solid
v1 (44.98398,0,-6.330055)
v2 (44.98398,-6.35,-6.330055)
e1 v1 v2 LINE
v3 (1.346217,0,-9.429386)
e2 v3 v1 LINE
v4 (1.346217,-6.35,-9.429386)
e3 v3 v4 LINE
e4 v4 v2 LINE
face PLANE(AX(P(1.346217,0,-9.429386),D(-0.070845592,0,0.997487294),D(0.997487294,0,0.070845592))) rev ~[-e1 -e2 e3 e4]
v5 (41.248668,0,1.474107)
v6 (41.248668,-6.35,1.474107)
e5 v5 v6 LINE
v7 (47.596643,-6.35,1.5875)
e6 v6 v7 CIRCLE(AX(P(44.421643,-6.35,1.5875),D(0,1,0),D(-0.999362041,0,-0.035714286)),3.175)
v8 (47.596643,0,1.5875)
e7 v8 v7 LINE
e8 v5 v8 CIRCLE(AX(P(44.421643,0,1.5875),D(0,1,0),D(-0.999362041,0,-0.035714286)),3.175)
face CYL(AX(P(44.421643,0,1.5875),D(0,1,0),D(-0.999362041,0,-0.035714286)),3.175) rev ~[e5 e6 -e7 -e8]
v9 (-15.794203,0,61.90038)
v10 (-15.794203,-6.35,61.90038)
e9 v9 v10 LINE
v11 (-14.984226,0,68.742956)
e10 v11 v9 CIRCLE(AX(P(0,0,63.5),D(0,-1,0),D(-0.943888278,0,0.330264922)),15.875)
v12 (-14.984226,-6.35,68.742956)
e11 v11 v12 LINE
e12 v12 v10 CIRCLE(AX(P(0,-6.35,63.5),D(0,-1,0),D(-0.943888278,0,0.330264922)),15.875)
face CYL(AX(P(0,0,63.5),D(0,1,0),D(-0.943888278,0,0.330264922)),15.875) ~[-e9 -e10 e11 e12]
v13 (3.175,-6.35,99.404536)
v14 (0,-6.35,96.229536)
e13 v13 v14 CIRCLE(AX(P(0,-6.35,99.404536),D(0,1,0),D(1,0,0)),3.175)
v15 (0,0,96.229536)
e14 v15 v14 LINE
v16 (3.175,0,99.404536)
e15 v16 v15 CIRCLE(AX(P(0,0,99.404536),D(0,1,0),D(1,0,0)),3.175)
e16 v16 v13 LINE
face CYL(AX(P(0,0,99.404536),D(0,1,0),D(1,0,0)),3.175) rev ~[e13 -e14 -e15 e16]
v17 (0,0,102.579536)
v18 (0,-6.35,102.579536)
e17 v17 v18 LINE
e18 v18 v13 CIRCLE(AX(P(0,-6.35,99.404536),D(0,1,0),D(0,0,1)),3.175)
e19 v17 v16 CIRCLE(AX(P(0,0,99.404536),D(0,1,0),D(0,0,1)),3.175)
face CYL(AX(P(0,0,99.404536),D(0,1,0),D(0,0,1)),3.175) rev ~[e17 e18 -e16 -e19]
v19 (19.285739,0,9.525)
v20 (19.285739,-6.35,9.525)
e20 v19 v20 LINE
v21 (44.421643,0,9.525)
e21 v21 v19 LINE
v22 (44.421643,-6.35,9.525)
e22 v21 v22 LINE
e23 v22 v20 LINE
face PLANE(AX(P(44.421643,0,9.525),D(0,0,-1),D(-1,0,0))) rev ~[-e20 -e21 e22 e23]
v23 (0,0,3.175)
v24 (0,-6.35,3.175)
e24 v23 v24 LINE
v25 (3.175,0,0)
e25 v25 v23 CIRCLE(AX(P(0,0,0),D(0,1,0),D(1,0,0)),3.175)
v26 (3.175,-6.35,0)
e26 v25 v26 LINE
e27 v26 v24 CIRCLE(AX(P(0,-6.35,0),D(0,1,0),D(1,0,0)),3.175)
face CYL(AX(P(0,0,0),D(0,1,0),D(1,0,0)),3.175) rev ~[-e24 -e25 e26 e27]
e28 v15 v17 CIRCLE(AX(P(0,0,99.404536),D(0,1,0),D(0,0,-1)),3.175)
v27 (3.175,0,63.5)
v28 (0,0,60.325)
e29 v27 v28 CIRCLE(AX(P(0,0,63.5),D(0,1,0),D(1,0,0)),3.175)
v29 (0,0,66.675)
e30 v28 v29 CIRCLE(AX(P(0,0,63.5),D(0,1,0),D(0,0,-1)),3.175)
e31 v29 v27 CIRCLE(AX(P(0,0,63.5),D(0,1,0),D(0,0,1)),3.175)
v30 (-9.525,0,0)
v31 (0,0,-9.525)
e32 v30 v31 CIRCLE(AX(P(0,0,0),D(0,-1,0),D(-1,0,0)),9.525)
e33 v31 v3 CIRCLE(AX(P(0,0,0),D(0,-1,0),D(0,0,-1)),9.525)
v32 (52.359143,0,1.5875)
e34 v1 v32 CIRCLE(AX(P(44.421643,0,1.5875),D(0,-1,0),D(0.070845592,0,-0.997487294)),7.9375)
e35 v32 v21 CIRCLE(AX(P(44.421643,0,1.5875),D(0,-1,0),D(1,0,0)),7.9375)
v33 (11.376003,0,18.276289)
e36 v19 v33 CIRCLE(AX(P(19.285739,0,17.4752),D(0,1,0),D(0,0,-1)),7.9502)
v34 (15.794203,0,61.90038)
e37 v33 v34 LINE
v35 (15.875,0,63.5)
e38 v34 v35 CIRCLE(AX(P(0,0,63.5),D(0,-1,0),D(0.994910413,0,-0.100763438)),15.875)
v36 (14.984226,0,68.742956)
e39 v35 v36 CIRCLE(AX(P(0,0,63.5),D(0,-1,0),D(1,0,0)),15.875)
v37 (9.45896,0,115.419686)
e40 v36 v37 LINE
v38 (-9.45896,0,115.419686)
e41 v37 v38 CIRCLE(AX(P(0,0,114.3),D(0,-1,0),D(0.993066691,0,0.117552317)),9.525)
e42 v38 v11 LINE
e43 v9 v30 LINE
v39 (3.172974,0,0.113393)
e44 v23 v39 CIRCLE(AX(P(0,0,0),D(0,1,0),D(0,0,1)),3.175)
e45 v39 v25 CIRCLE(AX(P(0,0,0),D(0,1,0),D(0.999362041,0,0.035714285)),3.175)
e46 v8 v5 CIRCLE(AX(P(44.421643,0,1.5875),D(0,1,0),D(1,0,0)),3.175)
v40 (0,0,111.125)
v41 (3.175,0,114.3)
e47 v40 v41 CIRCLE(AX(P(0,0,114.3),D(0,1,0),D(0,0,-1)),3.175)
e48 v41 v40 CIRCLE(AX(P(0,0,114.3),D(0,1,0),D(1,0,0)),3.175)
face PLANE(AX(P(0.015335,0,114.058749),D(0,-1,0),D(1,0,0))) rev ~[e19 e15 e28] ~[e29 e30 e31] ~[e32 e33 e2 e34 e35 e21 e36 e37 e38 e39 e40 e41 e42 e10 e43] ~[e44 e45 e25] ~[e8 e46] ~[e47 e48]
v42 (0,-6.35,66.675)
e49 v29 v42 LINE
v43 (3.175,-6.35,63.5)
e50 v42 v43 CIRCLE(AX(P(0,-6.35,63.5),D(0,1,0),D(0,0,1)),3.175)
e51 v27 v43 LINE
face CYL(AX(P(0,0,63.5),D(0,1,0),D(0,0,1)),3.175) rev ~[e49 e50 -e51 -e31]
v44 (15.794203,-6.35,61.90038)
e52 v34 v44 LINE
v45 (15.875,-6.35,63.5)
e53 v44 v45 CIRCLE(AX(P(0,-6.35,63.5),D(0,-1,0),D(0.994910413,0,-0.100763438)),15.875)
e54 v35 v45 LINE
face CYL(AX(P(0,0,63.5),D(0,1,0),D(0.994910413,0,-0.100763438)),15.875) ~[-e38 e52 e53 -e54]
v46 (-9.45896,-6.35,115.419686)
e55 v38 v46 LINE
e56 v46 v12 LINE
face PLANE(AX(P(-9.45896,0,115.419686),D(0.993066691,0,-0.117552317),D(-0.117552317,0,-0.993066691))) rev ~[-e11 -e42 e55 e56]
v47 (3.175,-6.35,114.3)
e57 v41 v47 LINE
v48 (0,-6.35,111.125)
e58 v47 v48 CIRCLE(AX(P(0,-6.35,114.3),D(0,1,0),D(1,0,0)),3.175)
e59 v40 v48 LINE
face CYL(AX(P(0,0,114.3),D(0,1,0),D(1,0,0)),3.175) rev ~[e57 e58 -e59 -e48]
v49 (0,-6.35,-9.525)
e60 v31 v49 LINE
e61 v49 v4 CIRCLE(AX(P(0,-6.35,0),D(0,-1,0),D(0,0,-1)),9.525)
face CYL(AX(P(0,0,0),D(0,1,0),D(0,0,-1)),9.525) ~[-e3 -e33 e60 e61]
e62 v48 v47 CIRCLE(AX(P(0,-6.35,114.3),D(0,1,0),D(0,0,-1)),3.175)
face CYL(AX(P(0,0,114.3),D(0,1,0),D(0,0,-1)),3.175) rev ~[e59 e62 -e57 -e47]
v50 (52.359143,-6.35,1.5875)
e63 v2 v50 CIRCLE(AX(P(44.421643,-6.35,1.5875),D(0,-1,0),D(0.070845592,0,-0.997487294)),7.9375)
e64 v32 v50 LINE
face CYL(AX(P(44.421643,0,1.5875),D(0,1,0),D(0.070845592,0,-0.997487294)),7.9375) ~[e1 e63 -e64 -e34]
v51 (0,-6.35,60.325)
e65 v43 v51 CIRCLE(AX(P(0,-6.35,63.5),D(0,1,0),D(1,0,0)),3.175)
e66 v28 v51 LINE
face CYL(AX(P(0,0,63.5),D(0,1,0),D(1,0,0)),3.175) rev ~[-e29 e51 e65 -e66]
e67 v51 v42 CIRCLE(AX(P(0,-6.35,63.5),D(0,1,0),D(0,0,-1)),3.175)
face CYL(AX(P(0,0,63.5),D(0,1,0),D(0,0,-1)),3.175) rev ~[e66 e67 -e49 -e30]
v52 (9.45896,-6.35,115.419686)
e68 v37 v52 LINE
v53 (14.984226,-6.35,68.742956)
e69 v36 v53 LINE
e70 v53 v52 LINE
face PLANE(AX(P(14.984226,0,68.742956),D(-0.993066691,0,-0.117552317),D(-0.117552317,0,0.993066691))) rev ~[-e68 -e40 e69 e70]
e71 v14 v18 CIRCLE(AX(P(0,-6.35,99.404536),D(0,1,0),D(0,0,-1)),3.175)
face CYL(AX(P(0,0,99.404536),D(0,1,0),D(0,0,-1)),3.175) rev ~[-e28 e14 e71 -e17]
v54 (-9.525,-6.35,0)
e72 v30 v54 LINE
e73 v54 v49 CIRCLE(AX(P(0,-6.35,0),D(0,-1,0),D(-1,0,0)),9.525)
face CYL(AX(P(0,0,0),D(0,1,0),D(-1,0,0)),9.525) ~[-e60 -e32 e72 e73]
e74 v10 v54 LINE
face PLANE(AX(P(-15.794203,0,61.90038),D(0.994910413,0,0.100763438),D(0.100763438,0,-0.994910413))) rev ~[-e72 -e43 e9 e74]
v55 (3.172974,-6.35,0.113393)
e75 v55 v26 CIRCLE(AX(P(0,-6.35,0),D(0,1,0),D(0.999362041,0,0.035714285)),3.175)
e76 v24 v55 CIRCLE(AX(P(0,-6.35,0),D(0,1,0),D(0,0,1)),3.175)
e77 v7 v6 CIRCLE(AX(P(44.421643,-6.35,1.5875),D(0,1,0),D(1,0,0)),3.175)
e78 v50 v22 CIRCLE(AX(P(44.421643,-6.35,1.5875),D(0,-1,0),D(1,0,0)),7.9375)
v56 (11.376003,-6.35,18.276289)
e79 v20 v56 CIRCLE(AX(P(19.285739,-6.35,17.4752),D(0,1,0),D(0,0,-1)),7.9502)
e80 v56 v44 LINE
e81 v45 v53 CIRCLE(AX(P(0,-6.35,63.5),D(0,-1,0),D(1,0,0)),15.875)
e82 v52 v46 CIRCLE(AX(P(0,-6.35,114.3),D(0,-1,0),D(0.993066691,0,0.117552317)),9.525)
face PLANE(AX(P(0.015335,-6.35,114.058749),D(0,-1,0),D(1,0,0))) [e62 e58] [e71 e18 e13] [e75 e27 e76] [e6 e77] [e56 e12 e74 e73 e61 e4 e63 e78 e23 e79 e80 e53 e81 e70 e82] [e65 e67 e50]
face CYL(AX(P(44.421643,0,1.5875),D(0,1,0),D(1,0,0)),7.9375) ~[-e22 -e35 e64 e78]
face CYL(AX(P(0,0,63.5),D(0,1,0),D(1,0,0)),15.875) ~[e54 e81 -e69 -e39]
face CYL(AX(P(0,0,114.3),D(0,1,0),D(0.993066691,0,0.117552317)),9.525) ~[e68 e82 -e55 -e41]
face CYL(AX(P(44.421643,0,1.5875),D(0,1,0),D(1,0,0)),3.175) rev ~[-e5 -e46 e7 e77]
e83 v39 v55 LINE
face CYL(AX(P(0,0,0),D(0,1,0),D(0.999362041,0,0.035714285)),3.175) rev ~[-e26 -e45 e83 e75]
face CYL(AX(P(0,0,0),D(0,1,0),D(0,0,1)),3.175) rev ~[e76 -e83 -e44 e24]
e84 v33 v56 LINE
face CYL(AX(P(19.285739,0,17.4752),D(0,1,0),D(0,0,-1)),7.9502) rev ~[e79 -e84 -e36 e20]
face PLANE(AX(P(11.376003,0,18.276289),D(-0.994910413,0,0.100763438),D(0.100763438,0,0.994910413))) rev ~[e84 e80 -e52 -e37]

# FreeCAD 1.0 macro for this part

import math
import FreeCAD as App
import Part
import Sketcher
from FreeCAD import Vector
Q = App.Units.Quantity

doc = App.newDocument("Part")
params = doc.addObject("Spreadsheet::Sheet", "Params")
for row, (alias, value) in enumerate([
    ("sketch1_radius", "0.375 in"),
    ("sketch1_radius2", "0.3125 in"),
    ("sketch1_radius3", "0.313 in"),
    ("sketch1_radius4", "0.625 in"),
    ("sketch1_radius5", "0.375 in"),
    ("pad1_length", "0.25 in"),
], start=1):
    params.set(f"A{row}", alias)
    params.set(f"B{row}", "=" + value)
    params.setAlias(f"B{row}", alias)

body = doc.addObject("PartDesign::Body", "Body")

sketch1 = body.newObject("Sketcher::SketchObject", "Sketch")
sketch1.AttachmentSupport = (doc.getObject("XZ_Plane"), [""])
sketch1.MapMode = "FlatFace"
sketch1.addGeometry([
    Part.ArcOfCircle(Part.Circle(Vector(0, 0, 0), Vector(0, 0, 1), 9.525), math.radians(-90), math.radians(-81.874887)),
    Part.LineSegment(Vector(1.346217, -9.429386, 0), Vector(44.98398, -6.330055, 0)),
    Part.ArcOfCircle(Part.Circle(Vector(44.421643, 1.5875, 0), Vector(0, 0, 1), 7.9375), math.radians(-85.937443), math.radians(0)),
    Part.ArcOfCircle(Part.Circle(Vector(44.421643, 1.5875, 0), Vector(0, 0, 1), 7.9375), math.radians(0), math.radians(90)),
    Part.LineSegment(Vector(44.421643, 9.525, 0), Vector(19.285739, 9.525, 0)),
    Part.ArcOfCircle(Part.Circle(Vector(19.285739, 17.4752, 0), Vector(0, 0, 1), 7.9502), math.radians(174.216866), math.radians(270)),
    Part.LineSegment(Vector(11.376003, 18.276289, 0), Vector(15.794203, 61.90038, 0)),
    Part.ArcOfCircle(Part.Circle(Vector(0, 63.5, 0), Vector(0, 0, 1), 15.875), math.radians(-5.783134), math.radians(0)),
    Part.ArcOfCircle(Part.Circle(Vector(0, 63.5, 0), Vector(0, 0, 1), 15.875), math.radians(0), math.radians(19.284856)),
    Part.LineSegment(Vector(14.984226, 68.742956, 0), Vector(9.45896, 115.419686, 0)),
    Part.ArcOfCircle(Part.Circle(Vector(0, 114.3, 0), Vector(0, 0, 1), 9.525), math.radians(6.750861), math.radians(173.249139)),
    Part.LineSegment(Vector(-9.45896, 115.419686, 0), Vector(-14.984226, 68.742956, 0)),
    Part.ArcOfCircle(Part.Circle(Vector(0, 63.5, 0), Vector(0, 0, 1), 15.875), math.radians(160.715144), math.radians(185.783134)),
    Part.LineSegment(Vector(-15.794203, 61.90038, 0), Vector(-9.525, 0, 0)),
    Part.ArcOfCircle(Part.Circle(Vector(0, 0, 0), Vector(0, 0, 1), 9.525), math.radians(180), math.radians(270)),
    Part.ArcOfCircle(Part.Circle(Vector(0, 0, 0), Vector(0, 0, 1), 3.175), math.radians(90), math.radians(360)),
    Part.ArcOfCircle(Part.Circle(Vector(0, 0, 0), Vector(0, 0, 1), 3.175), math.radians(2.046713), math.radians(90)),
    Part.ArcOfCircle(Part.Circle(Vector(0, 0, 0), Vector(0, 0, 1), 3.175), math.radians(0), math.radians(2.046713)),
    Part.ArcOfCircle(Part.Circle(Vector(44.421643, 1.5875, 0), Vector(0, 0, 1), 3.175), math.radians(0), math.radians(182.046713)),
    Part.ArcOfCircle(Part.Circle(Vector(44.421643, 1.5875, 0), Vector(0, 0, 1), 3.175), math.radians(-177.953287), math.radians(0)),
    Part.ArcOfCircle(Part.Circle(Vector(0, 63.5, 0), Vector(0, 0, 1), 3.175), math.radians(90), math.radians(270)),
    Part.ArcOfCircle(Part.Circle(Vector(0, 63.5, 0), Vector(0, 0, 1), 3.175), math.radians(0), math.radians(90)),
    Part.ArcOfCircle(Part.Circle(Vector(0, 63.5, 0), Vector(0, 0, 1), 3.175), math.radians(-90), math.radians(0)),
    Part.ArcOfCircle(Part.Circle(Vector(0, 99.404536, 0), Vector(0, 0, 1), 3.175), math.radians(0), math.radians(90)),
    Part.ArcOfCircle(Part.Circle(Vector(0, 99.404536, 0), Vector(0, 0, 1), 3.175), math.radians(-90), math.radians(0)),
    Part.ArcOfCircle(Part.Circle(Vector(0, 99.404536, 0), Vector(0, 0, 1), 3.175), math.radians(90), math.radians(270)),
    Part.ArcOfCircle(Part.Circle(Vector(0, 114.3, 0), Vector(0, 0, 1), 3.175), math.radians(0), math.radians(270)),
    Part.ArcOfCircle(Part.Circle(Vector(0, 114.3, 0), Vector(0, 0, 1), 3.175), math.radians(-90), math.radians(0)),
], False)
sketch1.addConstraint([
    Sketcher.Constraint("Coincident", 0, 2, 1, 1),
    Sketcher.Constraint("Coincident", 1, 2, 2, 1),
    Sketcher.Constraint("Coincident", 2, 2, 3, 1),
    Sketcher.Constraint("Coincident", 3, 2, 4, 1),
    Sketcher.Constraint("Coincident", 4, 2, 5, 2),
    Sketcher.Constraint("Coincident", 5, 1, 6, 1),
    Sketcher.Constraint("Coincident", 6, 2, 7, 1),
    Sketcher.Constraint("Coincident", 7, 2, 8, 1),
    Sketcher.Constraint("Coincident", 8, 2, 9, 1),
    Sketcher.Constraint("Coincident", 9, 2, 10, 1),
    Sketcher.Constraint("Coincident", 10, 2, 11, 1),
    Sketcher.Constraint("Coincident", 11, 2, 12, 1),
    Sketcher.Constraint("Coincident", 12, 2, 13, 1),
    Sketcher.Constraint("Coincident", 13, 2, 14, 1),
    Sketcher.Constraint("Coincident", 14, 2, 0, 1),
    Sketcher.Constraint("Coincident", 15, 1, 16, 2),
    Sketcher.Constraint("Coincident", 16, 1, 17, 2),
    Sketcher.Constraint("Coincident", 17, 1, 15, 2),
    Sketcher.Constraint("Coincident", 18, 1, 19, 2),
    Sketcher.Constraint("Coincident", 19, 1, 18, 2),
    Sketcher.Constraint("Coincident", 20, 1, 21, 2),
    Sketcher.Constraint("Coincident", 21, 1, 22, 2),
    Sketcher.Constraint("Coincident", 22, 1, 20, 2),
    Sketcher.Constraint("Coincident", 23, 1, 24, 2),
    Sketcher.Constraint("Coincident", 24, 1, 25, 2),
    Sketcher.Constraint("Coincident", 25, 1, 23, 2),
    Sketcher.Constraint("Coincident", 26, 1, 27, 2),
    Sketcher.Constraint("Coincident", 27, 1, 26, 2),
    Sketcher.Constraint("Horizontal", 4),
    Sketcher.Constraint("Coincident", 0, 3, -1, 1),
    Sketcher.Constraint("Coincident", 14, 3, -1, 1),
    Sketcher.Constraint("Coincident", 15, 3, -1, 1),
    Sketcher.Constraint("Coincident", 16, 3, -1, 1),
    Sketcher.Constraint("Coincident", 3, 3, 2, 3),
    Sketcher.Constraint("Coincident", 8, 3, 7, 3),
    Sketcher.Constraint("Coincident", 12, 3, 7, 3),
    Sketcher.Constraint("Coincident", 18, 3, 2, 3),
    Sketcher.Constraint("Coincident", 20, 3, 7, 3),
    Sketcher.Constraint("Coincident", 21, 3, 7, 3),
    Sketcher.Constraint("Coincident", 24, 3, 23, 3),
    Sketcher.Constraint("Coincident", 26, 3, 10, 3),
    Sketcher.Constraint("PointOnObject", 7, 3, -2),
    Sketcher.Constraint("PointOnObject", 10, 3, -2),
    Sketcher.Constraint("PointOnObject", 22, 3, -2),
    Sketcher.Constraint("PointOnObject", 23, 3, -2),
    Sketcher.Constraint("PointOnObject", 25, 3, -2),
    Sketcher.Constraint("PointOnObject", 27, 3, -2),
    Sketcher.Constraint("PointOnObject", 13, 2, -1),
    Sketcher.Constraint("PointOnObject", 14, 2, -2),
    Sketcher.Constraint("PointOnObject", 15, 1, -2),
    Sketcher.Constraint("PointOnObject", 17, 1, -1),
    Sketcher.Constraint("PointOnObject", 20, 1, -2),
    Sketcher.Constraint("PointOnObject", 22, 1, -2),
    Sketcher.Constraint("PointOnObject", 24, 1, -2),
    Sketcher.Constraint("PointOnObject", 25, 1, -2),
    Sketcher.Constraint("PointOnObject", 27, 1, -2),
    Sketcher.Constraint("Radius", 0, Q("0.375 in")),
    Sketcher.Constraint("Radius", 2, Q("0.3125 in")),
    Sketcher.Constraint("Radius", 5, Q("0.313 in")),
    Sketcher.Constraint("Radius", 7, Q("0.625 in")),
    Sketcher.Constraint("Radius", 10, Q("0.375 in")),
    Sketcher.Constraint("Radius", 12, Q("0.625 in")),
    Sketcher.Constraint("Radius", 15, Q("0.125 in")),
    Sketcher.Constraint("Radius", 17, Q("0.125 in")),
    Sketcher.Constraint("Radius", 18, Q("0.125 in")),
    Sketcher.Constraint("Radius", 19, Q("0.125 in")),
    Sketcher.Constraint("Radius", 20, Q("0.125 in")),
    Sketcher.Constraint("Radius", 23, Q("0.125 in")),
    Sketcher.Constraint("Radius", 26, Q("0.125 in")),
    Sketcher.Constraint("DistanceY", 8, 3, 10, 3, Q("2 in")),
    Sketcher.Constraint("DistanceY", -1, 1, 7, 3, Q("2.5 in")),
    Sketcher.Constraint("DistanceY", -1, 1, 7, 2, Q("2.5 in")),
    Sketcher.Constraint("DistanceY", -1, 1, 21, 1, Q("2.5 in")),
    Sketcher.Constraint("DistanceY", -1, 1, 26, 1, Q("4.5 in")),
    Sketcher.Constraint("DistanceY", -1, 1, 2, 3, Q("0.0625 in")),
    Sketcher.Constraint("DistanceY", -1, 1, 2, 2, Q("0.0625 in")),
    Sketcher.Constraint("DistanceY", -1, 1, 18, 1, Q("0.0625 in")),
    Sketcher.Constraint("DistanceX", 3, 2, 2, 2, Q("0.3125 in")),
    Sketcher.Constraint("DistanceY", 24, 1, 23, 1, Q("0.125 in")),
    Sketcher.Constraint("DistanceX", -1, 1, 9, 2, Q("0.3724 in")),
    Sketcher.Constraint("DistanceX", 10, 2, -1, 1, Q("0.3724 in")),
    Sketcher.Constraint("Distance", 13, 62.217039),
    Sketcher.Constraint("DistanceX", 4, 2, 4, 1, 25.135903),
    Sketcher.Constraint("DistanceX", -1, 1, 5, 3, 19.285739),
    Sketcher.Constraint("DistanceX", -1, 1, 1, 2, 44.98398),
    Sketcher.Constraint("DistanceX", -1, 1, 4, 2, 19.285739),
    Sketcher.Constraint("DistanceY", -1, 1, 5, 1, 18.276289),
    Sketcher.Constraint("DistanceY", -1, 1, 6, 2, 61.90038),
    Sketcher.Constraint("DistanceX", -1, 1, 19, 1, 41.248668),
    Sketcher.Constraint("DistanceY", 23, 3, 9, 2, 16.01515),
    Sketcher.Constraint("Distance", 1, 43.747687),
    Sketcher.Constraint("Distance", 9, 47.002614),
    Sketcher.Constraint("Distance", 11, 47.002614),
    Sketcher.Constraint("DistanceX", -1, 1, 16, 1, 3.172974),
])
sketch1.setExpression("Constraints[56]", "Params.sketch1_radius")
sketch1.setExpression("Constraints[57]", "Params.sketch1_radius2")
sketch1.setExpression("Constraints[58]", "Params.sketch1_radius3")
sketch1.setExpression("Constraints[59]", "Params.sketch1_radius4")
sketch1.setExpression("Constraints[60]", "Params.sketch1_radius5")
pad1 = body.newObject("PartDesign::Pad", "Pad")
pad1.Profile = sketch1
pad1.setExpression("Length", "Params.pad1_length")

doc.recompute()
